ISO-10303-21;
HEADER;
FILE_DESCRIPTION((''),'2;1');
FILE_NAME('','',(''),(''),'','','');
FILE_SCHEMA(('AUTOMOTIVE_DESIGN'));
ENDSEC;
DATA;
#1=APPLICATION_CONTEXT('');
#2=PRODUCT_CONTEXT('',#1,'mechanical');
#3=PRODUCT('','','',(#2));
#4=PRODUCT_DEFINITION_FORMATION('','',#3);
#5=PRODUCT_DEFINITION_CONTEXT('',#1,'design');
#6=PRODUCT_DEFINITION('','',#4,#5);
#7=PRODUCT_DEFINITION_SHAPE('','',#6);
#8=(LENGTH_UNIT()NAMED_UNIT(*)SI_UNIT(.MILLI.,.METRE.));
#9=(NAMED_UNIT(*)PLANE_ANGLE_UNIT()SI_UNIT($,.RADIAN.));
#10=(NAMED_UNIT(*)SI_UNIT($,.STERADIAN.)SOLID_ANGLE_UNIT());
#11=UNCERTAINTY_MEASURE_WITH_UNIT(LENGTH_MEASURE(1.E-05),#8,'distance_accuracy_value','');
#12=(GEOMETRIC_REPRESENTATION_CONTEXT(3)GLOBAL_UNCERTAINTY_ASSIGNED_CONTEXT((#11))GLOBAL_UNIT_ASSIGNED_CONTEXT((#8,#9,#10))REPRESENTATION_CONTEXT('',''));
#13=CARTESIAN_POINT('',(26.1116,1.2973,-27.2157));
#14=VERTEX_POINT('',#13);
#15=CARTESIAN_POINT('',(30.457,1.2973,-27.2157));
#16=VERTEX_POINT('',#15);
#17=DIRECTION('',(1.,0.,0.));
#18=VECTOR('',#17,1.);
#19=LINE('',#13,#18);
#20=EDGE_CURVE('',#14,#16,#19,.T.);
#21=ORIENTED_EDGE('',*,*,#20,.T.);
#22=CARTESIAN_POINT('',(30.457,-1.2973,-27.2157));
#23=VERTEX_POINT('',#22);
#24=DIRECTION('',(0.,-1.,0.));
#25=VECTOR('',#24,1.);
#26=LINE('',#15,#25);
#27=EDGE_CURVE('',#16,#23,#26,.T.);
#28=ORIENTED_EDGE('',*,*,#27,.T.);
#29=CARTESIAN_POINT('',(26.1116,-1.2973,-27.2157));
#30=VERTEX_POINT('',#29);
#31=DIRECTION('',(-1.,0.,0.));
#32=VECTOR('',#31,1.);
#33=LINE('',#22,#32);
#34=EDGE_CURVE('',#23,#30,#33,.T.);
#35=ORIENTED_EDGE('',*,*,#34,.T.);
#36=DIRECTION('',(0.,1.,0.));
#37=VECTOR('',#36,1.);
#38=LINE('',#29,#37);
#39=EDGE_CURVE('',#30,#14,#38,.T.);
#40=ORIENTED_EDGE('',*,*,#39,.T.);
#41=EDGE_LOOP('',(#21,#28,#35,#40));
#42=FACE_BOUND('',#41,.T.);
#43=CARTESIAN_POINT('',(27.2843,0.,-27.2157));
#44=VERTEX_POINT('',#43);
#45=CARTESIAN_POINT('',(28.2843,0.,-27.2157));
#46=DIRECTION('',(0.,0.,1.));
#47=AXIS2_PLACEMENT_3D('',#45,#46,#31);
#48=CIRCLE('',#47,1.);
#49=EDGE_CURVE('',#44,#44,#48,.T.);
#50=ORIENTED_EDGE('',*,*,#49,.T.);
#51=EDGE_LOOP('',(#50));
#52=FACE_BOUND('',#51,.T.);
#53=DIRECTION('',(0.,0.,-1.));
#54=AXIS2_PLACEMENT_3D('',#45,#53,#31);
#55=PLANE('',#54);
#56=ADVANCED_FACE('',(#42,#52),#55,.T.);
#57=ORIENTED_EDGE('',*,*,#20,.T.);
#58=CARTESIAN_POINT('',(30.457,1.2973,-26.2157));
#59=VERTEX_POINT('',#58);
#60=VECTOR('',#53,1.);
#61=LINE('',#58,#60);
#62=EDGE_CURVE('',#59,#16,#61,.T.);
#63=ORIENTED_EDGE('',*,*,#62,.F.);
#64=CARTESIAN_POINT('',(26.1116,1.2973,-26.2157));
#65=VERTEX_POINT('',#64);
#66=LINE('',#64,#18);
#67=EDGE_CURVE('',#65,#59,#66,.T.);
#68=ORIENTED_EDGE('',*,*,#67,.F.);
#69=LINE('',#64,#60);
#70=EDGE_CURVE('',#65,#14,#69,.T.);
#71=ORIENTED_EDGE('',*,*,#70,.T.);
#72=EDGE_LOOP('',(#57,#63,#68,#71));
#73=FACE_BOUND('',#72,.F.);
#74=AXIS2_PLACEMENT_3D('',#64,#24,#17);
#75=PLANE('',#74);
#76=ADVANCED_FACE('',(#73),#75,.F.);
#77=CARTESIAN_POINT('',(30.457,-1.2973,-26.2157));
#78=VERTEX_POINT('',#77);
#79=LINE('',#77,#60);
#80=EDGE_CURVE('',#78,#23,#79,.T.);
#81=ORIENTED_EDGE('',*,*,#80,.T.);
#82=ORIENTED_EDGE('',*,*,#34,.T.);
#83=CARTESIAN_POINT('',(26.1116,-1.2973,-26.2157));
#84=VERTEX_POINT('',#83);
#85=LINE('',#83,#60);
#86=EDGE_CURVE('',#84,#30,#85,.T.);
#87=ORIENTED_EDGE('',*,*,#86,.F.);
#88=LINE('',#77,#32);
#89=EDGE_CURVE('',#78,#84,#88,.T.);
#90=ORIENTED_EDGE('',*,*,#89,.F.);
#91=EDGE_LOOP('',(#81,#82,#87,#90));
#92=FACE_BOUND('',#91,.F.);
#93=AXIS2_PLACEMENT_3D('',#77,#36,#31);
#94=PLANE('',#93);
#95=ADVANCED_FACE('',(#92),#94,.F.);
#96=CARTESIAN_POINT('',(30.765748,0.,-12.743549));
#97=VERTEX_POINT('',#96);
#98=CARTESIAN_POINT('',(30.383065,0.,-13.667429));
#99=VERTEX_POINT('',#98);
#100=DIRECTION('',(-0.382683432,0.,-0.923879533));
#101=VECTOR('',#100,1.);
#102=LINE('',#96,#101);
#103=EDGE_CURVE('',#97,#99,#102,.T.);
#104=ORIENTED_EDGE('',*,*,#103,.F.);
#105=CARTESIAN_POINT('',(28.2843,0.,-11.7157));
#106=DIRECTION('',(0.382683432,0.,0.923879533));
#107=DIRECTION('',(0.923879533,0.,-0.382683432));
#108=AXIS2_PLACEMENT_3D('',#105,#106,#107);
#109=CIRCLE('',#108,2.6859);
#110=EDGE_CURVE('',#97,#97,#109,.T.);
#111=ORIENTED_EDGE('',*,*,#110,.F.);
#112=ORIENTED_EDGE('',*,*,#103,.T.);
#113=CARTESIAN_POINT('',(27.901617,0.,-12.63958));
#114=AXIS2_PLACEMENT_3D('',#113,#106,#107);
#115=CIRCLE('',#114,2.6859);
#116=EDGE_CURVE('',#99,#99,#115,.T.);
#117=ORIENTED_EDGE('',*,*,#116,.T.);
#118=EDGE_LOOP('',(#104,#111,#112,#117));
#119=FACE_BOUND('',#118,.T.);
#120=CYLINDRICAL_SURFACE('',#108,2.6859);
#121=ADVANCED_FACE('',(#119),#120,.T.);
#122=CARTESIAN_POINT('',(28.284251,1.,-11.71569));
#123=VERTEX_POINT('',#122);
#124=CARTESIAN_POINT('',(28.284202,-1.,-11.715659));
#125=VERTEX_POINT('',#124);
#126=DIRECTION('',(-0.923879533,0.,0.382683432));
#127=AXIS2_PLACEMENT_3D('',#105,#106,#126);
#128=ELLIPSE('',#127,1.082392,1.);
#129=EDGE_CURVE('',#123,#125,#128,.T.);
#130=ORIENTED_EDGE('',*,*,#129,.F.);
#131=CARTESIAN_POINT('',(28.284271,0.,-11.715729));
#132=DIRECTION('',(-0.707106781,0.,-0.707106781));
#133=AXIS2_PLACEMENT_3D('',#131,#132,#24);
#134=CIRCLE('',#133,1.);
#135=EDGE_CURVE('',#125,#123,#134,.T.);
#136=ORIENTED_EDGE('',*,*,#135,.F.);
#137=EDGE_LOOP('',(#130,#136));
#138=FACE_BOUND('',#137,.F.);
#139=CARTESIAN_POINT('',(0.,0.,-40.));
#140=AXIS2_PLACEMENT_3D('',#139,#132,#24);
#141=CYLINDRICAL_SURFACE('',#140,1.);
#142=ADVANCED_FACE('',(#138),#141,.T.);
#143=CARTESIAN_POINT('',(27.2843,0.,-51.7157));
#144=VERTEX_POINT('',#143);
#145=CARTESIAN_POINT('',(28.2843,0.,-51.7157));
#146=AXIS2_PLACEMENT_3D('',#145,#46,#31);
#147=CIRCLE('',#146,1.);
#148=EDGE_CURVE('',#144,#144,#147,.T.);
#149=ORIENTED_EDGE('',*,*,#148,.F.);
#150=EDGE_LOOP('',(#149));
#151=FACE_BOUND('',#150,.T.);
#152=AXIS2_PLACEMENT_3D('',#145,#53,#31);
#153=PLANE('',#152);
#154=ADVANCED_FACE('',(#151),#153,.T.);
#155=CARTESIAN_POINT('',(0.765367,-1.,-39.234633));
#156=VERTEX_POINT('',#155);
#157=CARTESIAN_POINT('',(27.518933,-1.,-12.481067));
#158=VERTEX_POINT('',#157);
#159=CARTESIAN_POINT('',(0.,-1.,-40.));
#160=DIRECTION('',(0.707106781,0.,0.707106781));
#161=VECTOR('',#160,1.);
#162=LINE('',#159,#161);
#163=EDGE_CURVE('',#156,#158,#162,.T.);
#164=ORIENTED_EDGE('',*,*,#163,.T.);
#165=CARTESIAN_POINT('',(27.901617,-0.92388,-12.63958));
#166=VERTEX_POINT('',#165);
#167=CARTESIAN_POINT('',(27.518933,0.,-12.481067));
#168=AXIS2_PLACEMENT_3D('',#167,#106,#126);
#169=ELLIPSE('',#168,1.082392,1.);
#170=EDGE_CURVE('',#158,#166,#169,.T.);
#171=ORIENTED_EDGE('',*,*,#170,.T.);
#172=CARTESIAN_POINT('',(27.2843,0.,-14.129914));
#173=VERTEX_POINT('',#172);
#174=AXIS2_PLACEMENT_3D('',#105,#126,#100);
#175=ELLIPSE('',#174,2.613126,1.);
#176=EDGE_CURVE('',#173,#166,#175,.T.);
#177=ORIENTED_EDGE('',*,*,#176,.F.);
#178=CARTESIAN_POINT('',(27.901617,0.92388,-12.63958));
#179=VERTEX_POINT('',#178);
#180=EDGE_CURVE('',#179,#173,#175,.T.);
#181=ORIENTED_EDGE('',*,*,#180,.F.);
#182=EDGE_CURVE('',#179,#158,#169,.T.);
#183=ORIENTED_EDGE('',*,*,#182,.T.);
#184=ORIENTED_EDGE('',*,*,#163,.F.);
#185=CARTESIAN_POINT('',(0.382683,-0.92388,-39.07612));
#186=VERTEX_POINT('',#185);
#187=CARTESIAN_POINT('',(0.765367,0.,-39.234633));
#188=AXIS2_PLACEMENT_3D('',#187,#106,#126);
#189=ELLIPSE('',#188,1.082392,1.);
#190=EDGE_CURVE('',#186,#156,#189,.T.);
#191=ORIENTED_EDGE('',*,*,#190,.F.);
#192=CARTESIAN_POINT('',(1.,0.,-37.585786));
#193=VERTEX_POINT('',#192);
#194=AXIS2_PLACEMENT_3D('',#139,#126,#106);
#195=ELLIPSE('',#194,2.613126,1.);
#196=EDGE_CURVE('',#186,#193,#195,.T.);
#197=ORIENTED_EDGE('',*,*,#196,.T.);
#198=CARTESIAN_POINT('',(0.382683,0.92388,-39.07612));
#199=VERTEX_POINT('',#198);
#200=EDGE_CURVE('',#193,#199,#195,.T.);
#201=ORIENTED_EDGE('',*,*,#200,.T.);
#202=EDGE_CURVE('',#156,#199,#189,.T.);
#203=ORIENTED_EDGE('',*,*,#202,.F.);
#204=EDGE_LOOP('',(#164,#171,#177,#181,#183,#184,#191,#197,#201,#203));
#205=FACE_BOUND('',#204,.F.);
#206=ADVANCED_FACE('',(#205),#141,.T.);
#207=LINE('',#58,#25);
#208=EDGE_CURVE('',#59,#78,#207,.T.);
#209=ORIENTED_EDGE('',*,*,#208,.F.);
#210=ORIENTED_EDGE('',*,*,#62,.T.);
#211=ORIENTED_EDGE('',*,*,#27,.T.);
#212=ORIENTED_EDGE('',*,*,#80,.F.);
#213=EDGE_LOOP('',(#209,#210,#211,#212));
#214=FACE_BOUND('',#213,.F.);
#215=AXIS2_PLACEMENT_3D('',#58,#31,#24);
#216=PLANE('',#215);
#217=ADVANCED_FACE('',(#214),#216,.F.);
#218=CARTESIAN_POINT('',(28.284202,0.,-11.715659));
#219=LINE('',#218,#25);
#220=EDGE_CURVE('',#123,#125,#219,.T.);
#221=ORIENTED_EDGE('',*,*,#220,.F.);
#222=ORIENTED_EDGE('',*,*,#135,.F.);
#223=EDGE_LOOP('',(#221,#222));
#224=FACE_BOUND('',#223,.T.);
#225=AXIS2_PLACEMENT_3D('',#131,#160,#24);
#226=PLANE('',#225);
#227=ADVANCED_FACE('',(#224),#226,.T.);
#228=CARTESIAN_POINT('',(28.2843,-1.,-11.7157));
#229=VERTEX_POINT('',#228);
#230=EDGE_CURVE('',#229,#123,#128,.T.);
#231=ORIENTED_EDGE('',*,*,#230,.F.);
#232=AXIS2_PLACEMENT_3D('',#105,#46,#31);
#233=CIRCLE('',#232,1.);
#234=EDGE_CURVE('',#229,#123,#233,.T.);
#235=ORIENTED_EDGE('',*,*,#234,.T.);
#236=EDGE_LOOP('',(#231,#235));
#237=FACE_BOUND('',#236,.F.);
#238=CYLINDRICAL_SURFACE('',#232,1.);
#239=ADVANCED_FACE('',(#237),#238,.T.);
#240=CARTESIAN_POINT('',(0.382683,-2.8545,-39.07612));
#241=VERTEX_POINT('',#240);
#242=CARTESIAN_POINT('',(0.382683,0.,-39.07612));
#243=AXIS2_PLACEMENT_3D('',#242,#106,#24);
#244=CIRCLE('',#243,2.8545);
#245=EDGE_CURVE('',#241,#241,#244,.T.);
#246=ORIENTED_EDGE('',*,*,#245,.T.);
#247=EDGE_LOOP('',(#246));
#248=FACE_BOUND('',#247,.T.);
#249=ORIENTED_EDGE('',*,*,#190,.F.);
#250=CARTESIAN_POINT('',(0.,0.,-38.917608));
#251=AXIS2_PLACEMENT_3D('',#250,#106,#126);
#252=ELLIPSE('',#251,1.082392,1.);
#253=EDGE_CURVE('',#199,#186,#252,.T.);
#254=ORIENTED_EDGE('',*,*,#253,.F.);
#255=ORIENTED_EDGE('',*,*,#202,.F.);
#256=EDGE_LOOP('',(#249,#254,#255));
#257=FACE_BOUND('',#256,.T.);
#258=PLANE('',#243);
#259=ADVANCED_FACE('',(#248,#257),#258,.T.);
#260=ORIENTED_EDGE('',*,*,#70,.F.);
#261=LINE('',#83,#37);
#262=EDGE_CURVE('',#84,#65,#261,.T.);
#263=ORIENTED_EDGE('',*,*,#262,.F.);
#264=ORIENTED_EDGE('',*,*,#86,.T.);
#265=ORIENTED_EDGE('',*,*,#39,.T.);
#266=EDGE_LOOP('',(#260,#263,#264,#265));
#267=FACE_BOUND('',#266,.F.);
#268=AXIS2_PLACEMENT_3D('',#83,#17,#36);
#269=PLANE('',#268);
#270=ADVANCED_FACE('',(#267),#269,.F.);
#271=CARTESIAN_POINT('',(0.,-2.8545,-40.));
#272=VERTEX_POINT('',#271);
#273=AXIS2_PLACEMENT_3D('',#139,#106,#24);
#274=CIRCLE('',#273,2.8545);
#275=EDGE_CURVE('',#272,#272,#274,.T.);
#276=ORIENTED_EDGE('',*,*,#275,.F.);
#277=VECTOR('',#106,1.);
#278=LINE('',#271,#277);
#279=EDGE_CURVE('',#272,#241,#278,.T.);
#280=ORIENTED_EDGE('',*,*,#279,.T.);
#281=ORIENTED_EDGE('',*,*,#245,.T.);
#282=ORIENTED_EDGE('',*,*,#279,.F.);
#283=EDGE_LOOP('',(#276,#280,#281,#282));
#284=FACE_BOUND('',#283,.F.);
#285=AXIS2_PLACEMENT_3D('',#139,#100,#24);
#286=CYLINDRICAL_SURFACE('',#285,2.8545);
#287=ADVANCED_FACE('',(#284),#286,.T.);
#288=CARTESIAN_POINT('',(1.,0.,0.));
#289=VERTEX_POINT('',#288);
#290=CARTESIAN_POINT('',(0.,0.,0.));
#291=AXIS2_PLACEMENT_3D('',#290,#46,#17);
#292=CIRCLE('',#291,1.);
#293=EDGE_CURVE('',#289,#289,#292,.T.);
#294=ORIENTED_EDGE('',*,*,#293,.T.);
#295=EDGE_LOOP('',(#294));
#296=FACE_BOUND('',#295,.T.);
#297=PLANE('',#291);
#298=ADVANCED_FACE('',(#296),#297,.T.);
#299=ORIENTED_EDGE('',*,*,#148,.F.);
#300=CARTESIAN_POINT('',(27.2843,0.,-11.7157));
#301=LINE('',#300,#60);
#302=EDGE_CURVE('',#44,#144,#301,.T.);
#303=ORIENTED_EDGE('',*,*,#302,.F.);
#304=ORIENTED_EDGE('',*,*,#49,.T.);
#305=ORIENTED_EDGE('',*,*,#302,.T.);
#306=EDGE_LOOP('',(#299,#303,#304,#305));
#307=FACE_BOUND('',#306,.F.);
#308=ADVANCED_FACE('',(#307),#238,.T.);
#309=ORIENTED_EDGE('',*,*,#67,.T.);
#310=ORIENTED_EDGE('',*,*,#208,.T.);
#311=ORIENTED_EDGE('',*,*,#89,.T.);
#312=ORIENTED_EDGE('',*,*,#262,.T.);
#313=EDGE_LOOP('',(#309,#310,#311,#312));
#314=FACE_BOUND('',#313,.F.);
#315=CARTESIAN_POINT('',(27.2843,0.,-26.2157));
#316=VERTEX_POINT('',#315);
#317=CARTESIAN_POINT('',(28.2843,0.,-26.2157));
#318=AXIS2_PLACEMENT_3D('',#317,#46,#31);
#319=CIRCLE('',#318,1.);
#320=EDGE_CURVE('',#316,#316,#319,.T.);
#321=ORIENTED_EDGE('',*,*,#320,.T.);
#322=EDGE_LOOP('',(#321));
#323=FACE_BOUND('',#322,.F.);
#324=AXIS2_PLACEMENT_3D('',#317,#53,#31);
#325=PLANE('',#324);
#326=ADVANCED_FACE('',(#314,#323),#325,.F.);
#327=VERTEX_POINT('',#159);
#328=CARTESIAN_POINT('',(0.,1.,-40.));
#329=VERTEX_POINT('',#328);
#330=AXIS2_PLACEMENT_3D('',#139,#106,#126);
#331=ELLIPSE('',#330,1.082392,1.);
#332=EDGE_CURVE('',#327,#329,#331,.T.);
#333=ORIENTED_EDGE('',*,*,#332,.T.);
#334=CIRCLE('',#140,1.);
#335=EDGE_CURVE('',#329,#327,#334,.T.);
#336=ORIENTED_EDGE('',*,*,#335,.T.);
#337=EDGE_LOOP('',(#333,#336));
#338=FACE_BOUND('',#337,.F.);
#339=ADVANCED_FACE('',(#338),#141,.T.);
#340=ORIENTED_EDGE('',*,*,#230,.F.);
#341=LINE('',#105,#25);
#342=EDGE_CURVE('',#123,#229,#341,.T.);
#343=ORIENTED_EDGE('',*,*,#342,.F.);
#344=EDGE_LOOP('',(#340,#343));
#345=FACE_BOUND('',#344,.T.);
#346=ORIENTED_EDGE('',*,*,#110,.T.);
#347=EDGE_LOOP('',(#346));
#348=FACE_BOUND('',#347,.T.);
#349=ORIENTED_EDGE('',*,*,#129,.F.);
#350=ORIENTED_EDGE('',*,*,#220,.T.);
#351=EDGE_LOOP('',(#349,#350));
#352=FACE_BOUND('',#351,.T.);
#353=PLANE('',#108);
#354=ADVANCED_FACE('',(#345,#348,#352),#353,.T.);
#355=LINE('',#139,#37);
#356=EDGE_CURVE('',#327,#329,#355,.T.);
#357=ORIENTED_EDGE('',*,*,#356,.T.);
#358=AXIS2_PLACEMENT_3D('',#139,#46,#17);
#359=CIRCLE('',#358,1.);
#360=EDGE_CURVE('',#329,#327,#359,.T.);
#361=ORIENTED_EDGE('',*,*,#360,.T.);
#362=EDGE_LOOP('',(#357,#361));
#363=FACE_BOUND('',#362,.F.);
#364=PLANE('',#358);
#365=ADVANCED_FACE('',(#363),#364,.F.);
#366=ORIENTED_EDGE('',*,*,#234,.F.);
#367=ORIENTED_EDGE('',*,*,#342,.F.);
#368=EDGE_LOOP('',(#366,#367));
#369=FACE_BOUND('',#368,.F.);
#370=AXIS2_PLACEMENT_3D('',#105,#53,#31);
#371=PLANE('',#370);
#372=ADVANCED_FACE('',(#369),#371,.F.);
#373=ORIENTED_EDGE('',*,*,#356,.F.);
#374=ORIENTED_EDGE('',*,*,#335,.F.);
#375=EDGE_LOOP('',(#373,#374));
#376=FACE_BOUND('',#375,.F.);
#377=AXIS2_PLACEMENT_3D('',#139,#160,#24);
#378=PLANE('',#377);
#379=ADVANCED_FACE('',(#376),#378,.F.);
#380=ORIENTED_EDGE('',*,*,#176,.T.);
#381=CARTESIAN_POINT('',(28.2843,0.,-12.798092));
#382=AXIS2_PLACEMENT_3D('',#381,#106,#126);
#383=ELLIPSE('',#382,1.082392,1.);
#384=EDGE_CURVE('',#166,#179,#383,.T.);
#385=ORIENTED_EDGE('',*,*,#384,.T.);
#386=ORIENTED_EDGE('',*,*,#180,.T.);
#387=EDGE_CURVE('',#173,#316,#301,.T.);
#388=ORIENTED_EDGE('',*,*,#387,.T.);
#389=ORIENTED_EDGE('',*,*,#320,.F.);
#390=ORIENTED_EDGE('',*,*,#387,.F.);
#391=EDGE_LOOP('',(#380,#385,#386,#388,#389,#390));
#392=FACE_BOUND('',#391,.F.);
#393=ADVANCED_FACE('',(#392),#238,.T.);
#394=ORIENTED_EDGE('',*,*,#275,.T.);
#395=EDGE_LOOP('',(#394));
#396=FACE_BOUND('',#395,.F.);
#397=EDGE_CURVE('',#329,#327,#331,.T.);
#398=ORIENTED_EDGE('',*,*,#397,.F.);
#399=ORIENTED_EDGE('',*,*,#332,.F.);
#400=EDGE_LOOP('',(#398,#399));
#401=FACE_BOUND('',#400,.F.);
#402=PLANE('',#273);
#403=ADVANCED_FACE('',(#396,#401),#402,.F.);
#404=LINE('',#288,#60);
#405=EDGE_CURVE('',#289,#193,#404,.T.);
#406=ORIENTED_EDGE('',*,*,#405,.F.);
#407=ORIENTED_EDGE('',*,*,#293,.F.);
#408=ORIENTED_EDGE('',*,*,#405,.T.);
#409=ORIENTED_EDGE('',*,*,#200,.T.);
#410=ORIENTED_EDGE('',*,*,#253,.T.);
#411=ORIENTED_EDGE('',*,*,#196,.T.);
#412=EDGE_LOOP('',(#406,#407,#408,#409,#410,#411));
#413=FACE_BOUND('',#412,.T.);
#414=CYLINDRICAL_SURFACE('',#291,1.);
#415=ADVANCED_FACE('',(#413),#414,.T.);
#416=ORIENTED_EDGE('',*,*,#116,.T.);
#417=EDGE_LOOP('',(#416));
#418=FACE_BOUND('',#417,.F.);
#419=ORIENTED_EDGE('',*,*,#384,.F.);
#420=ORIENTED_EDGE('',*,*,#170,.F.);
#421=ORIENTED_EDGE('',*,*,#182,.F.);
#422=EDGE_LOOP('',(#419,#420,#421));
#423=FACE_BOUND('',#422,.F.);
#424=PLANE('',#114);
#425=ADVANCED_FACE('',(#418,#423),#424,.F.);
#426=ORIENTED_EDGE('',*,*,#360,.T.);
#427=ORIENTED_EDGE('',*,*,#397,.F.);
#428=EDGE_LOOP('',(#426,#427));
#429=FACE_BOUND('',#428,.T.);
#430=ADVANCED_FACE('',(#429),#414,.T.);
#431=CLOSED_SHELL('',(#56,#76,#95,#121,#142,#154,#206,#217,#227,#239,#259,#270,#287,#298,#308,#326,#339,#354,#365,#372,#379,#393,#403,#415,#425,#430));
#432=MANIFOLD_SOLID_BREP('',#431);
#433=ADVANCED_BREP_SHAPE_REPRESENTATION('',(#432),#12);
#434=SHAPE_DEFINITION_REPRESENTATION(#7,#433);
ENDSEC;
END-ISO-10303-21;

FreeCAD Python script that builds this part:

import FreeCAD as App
import Part
import Sketcher
from FreeCAD import Vector


def add_polygon(sketch, points):
    """Adds a closed chain of lines whose ends are joined by coincident constraints."""
    first, n = sketch.GeometryCount, len(points)
    for a, b in zip(points, points[1:] + points[:1]):
        sketch.addGeometry(Part.LineSegment(App.Vector(*a, 0), App.Vector(*b, 0)), False)
    for i in range(n):
        sketch.addConstraint(Sketcher.Constraint("Coincident", first + i, 2, first + (i + 1) % n, 1))

doc = App.newDocument("Part")
body = doc.addObject("PartDesign::Body", "Body")

# Sketch on XY plane
sketch1 = body.newObject("Sketcher::SketchObject", "Sketch")
sketch1.AttachmentSupport = (doc.getObject("XY_Plane"), [""])
sketch1.MapMode = "FlatFace"
sketch1.addGeometry(Part.Circle(Vector(0, 0, 0), Vector(0, 0, 1), 1), False)
sketch1.addConstraint([
    Sketcher.Constraint("Coincident", 0, 3, -1, 1),
    Sketcher.Constraint("Diameter", 0, 2.0),
])
pad1 = body.newObject("PartDesign::Pad", "Pad")
pad1.Profile = sketch1
pad1.Length = 40
pad1.Reversed = True

# Sketch on an angled plane
sketch2 = body.newObject("Sketcher::SketchObject", "Sketch001")
sketch2.Placement = App.Placement(Vector(0, 0, -40), App.Rotation(Vector(0, -1, 0), Vector(0.707106781, 0, -0.707106781), Vector(0.707106781, 0, 0.707106781), "ZXY"))
sketch2.addGeometry(Part.Circle(Vector(0, 0, 0), Vector(0, 0, 1), 1), False)
sketch2.addConstraint([
    Sketcher.Constraint("Coincident", 0, 3, -1, 1),
    Sketcher.Constraint("Diameter", 0, 2.0),
])
pad2 = body.newObject("PartDesign::Pad", "Pad001")
pad2.Profile = sketch2
pad2.Length = 40

# Sketch on XY plane
sketch3 = body.newObject("Sketcher::SketchObject", "Sketch002")
sketch3.AttachmentSupport = (doc.getObject("XY_Plane"), [""])
sketch3.MapMode = "FlatFace"
sketch3.AttachmentOffset = App.Placement(Vector(0, 0, -11.7157), App.Rotation())
sketch3.addGeometry(Part.Circle(Vector(28.3, 0, 0), Vector(0, 0, 1), 1), False)
sketch3.addConstraint([
    Sketcher.Constraint("PointOnObject", 0, 3, -1),
    Sketcher.Constraint("Diameter", 0, 2.0),
    Sketcher.Constraint("DistanceX", -1, 1, 0, 3, 28.2843),
])
pad3 = body.newObject("PartDesign::Pad", "Pad002")
pad3.Profile = sketch3
pad3.Length = 40
pad3.Reversed = True

# Sketch on an angled plane
sketch4 = body.newObject("Sketcher::SketchObject", "Sketch003")
sketch4.Placement = App.Placement(Vector(0, 0, -40), App.Rotation(Vector(0, -1, 0), Vector(0.923879533, 0, -0.382683432), Vector(0.382683432, 0, 0.923879533), "ZXY"))
sketch4.addGeometry(Part.Circle(Vector(0, 0, 0), Vector(0, 0, 1), 2.9), False)
sketch4.addConstraint([
    Sketcher.Constraint("Coincident", 0, 3, -1, 1),
    Sketcher.Constraint("Diameter", 0, 5.709),
])
pad4 = body.newObject("PartDesign::Pad", "Pad003")
pad4.Profile = sketch4
pad4.Length = 1

# Sketch on an angled plane
sketch5 = body.newObject("Sketcher::SketchObject", "Sketch004")
sketch5.Placement = App.Placement(Vector(28.2843, 0, -11.7157), App.Rotation(Vector(0.923879533, 0, -0.382683432), Vector(0, 1.000000001, 0), Vector(0.382683432, 0, 0.923879533), "ZXY"))
sketch5.addGeometry(Part.Circle(Vector(0, 0, 0), Vector(0, 0, 1), 2.7), False)
sketch5.addConstraint([
    Sketcher.Constraint("Coincident", 0, 3, -1, 1),
    Sketcher.Constraint("Diameter", 0, 5.3718),
])
pad5 = body.newObject("PartDesign::Pad", "Pad004")
pad5.Profile = sketch5
pad5.Length = 1
pad5.Reversed = True

# Sketch on XY plane
sketch6 = body.newObject("Sketcher::SketchObject", "Sketch005")
sketch6.AttachmentSupport = (doc.getObject("XY_Plane"), [""])
sketch6.MapMode = "FlatFace"
sketch6.AttachmentOffset = App.Placement(Vector(0, 0, -26.2157), App.Rotation())
add_polygon(sketch6, [(26.1, 1.3), (30.5, 1.3), (30.5, -1.3), (26.1, -1.3)])  # lines 0-3
sketch6.addConstraint([
    Sketcher.Constraint("Horizontal", 0),
    Sketcher.Constraint("Vertical", 1),
    Sketcher.Constraint("Horizontal", 2),
    Sketcher.Constraint("Vertical", 3),
    Sketcher.Constraint("DistanceX", 0, 1, 0, 2, 4.3454),
    Sketcher.Constraint("DistanceY", 1, 2, 1, 1, 2.5946),
    Sketcher.Constraint("DistanceX", -1, 1, 0, 2, 30.457),
    Sketcher.Constraint("DistanceY", -1, 1, 0, 2, 1.2973),
])
pad6 = body.newObject("PartDesign::Pad", "Pad005")
pad6.Profile = sketch6
pad6.Length = 1
pad6.Reversed = True

doc.recompute()
